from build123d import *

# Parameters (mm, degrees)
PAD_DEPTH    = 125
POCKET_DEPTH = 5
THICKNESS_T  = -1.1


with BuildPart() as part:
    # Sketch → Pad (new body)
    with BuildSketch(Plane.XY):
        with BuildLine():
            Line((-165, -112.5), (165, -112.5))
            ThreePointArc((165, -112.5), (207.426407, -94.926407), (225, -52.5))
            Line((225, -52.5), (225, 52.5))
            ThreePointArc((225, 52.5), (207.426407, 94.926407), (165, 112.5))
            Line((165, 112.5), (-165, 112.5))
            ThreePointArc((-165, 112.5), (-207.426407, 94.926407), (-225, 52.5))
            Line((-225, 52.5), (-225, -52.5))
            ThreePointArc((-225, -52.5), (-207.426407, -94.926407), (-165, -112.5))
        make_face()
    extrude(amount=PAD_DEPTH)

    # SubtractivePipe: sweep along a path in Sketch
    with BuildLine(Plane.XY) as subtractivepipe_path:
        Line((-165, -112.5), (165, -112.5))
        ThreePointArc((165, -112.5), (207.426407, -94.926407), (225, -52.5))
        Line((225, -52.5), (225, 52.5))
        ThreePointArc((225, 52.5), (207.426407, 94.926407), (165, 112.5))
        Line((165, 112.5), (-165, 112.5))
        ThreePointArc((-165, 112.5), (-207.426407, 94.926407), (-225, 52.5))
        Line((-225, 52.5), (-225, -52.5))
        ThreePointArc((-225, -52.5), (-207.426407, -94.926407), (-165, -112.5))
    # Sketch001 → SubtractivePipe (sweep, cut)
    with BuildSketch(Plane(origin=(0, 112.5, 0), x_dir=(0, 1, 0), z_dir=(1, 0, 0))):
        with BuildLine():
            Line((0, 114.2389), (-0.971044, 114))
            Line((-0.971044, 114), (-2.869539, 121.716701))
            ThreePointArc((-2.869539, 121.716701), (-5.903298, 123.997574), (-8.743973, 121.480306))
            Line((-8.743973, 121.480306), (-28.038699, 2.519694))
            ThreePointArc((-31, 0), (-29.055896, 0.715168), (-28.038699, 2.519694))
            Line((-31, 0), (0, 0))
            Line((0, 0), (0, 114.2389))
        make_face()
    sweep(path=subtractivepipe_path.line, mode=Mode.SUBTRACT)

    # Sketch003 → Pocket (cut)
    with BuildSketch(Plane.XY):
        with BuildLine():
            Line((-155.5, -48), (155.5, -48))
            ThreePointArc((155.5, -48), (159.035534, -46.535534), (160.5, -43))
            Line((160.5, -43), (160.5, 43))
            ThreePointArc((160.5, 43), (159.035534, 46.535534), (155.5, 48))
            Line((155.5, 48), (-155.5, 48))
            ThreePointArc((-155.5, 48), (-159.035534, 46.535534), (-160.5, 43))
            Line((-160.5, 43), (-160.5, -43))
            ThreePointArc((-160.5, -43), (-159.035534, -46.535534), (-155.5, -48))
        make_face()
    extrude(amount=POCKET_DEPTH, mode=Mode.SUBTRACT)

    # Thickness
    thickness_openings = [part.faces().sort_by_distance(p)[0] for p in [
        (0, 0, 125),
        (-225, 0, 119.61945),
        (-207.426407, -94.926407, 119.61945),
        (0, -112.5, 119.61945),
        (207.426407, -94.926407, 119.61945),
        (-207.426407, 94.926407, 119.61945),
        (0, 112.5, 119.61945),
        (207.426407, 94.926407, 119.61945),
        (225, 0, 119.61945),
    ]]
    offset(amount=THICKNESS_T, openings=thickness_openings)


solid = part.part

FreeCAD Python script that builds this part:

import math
import FreeCAD as App
import Part
import Sketcher

V = App.Vector
Q = App.Units.Quantity


def faces_at(feature, points):
    """Names of the faces that lie closest to the given points."""
    faces = feature.Shape.Faces
    near = lambda p: min(range(len(faces)), key=lambda i: faces[i].distToShape(Part.Vertex(*p))[0])
    return sorted({f"Face{near(p) + 1}" for p in points})

doc = App.newDocument("Part")
body = doc.addObject("PartDesign::Body", "Body")

sketch1 = body.newObject("Sketcher::SketchObject", "Sketch")
sketch1.AttachmentSupport = (doc.getObject("XY_Plane"), [""])
sketch1.MapMode = "FlatFace"
sketch1.addGeometry([
    Part.LineSegment(V(-165, -112, 0), V(165, -112, 0)),
    Part.ArcOfCircle(Part.Circle(V(165, -53, 0), V(0, 0, 1), 60), math.radians(-90), math.radians(0)),
    Part.LineSegment(V(225, -52, 0), V(225, 52, 0)),
    Part.ArcOfCircle(Part.Circle(V(165, 53, 0), V(0, 0, 1), 60), math.radians(0), math.radians(90)),
    Part.LineSegment(V(165, 112, 0), V(-165, 112, 0)),
    Part.ArcOfCircle(Part.Circle(V(-165, 53, 0), V(0, 0, 1), 60), math.radians(90), math.radians(180)),
    Part.LineSegment(V(-225, 52, 0), V(-225, -52, 0)),
    Part.ArcOfCircle(Part.Circle(V(-165, -53, 0), V(0, 0, 1), 60), math.radians(180), math.radians(270)),
], False)
sketch1.addConstraint([
    Sketcher.Constraint("Tangent", 0, 2, 1, 1),
    Sketcher.Constraint("Tangent", 1, 2, 2, 1),
    Sketcher.Constraint("Tangent", 2, 2, 3, 1),
    Sketcher.Constraint("Tangent", 3, 2, 4, 1),
    Sketcher.Constraint("Tangent", 4, 2, 5, 1),
    Sketcher.Constraint("Tangent", 5, 2, 6, 1),
    Sketcher.Constraint("Tangent", 6, 2, 7, 1),
    Sketcher.Constraint("Tangent", 7, 2, 0, 1),
    Sketcher.Constraint("Horizontal", 0),
    Sketcher.Constraint("Vertical", 2),
    Sketcher.Constraint("Horizontal", 4),
    Sketcher.Constraint("Vertical", 6),
    Sketcher.Constraint("Equal", 1, 3),
    Sketcher.Constraint("Equal", 3, 5),
    Sketcher.Constraint("Equal", 5, 7),
    Sketcher.Constraint("Symmetric", 1, 3, 5, 3, -1, 1),
    Sketcher.Constraint("Radius", 1, Q("60 mm")),
    Sketcher.Constraint("DistanceX", 0, 1, 0, 2, Q("330 mm")),
    Sketcher.Constraint("DistanceY", 2, 1, 2, 2, Q("105 mm")),
])
pad1 = body.newObject("PartDesign::Pad", "Pad")
pad1.Profile = sketch1
pad1.Length = 125

sketch2 = body.newObject("Sketcher::SketchObject", "Sketch001")
sketch2.AttachmentSupport = (doc.getObject("YZ_Plane"), [""])
sketch2.MapMode = "FlatFace"
sketch2.addGeometry([
    Part.LineSegment(V(112.5, 114.2, 0), V(111.5, 114, 0)),
    Part.LineSegment(V(111.5, 114, 0), V(109.6, 121.7, 0)),
    Part.ArcOfCircle(Part.Circle(V(106.7, 121, 0), V(0, 0, 1), 3), math.radians(14), math.radians(171)),
    Part.LineSegment(V(103.8, 121.5, 0), V(84.5, 2.5, 0)),
    Part.ArcOfCircle(Part.Circle(V(81.5, 3, 0), V(0, 0, 1), 3), math.radians(-90), math.radians(-9)),
    Part.LineSegment(V(81.5, 0, 0), V(112.5, 0, 0)),
    Part.LineSegment(V(112.5, 0, 0), V(112.5, 114.2, 0)),
], False)
sketch2.addConstraint([
    Sketcher.Constraint("Coincident", 0, 2, 1, 1),
    Sketcher.Constraint("Tangent", 1, 2, 2, 1),
    Sketcher.Constraint("Tangent", 2, 2, 3, 1),
    Sketcher.Constraint("Tangent", 3, 2, 4, 2),
    Sketcher.Constraint("Tangent", 4, 1, 5, 1),
    Sketcher.Constraint("Coincident", 5, 2, 6, 1),
    Sketcher.Constraint("Coincident", 6, 2, 0, 1),
    Sketcher.Constraint("Horizontal", 5),
    Sketcher.Constraint("Vertical", 6),
    Sketcher.Constraint("Equal", 2, 4),
    Sketcher.Constraint("PointOnObject", 4, 1, -1),
    Sketcher.Constraint("Perpendicular", 0, 1),
    Sketcher.Constraint("Radius", 2, Q("3 mm")),
    Sketcher.Constraint("DistanceX", 5, 1, 5, 2, Q("31 mm")),
    Sketcher.Constraint("Distance", 0, Q("1 mm")),
    Sketcher.Constraint("DistanceY", -1, 1, 2, 3, Q("121 mm")),
    Sketcher.Constraint("DistanceY", -1, 1, 0, 2, Q("114 mm")),
    Sketcher.Constraint("DistanceX", -1, 1, 4, 3, Q("81.499999 mm")),
    Sketcher.Constraint("DistanceY", 6, 1, 6, 2, Q("114.2389 mm")),
])

sketch3 = body.newObject("Sketcher::SketchObject", "Sketch002")
sketch3.AttachmentSupport = (doc.getObject("XY_Plane"), [""])
sketch3.MapMode = "FlatFace"
sketch3.addGeometry([
    Part.LineSegment(V(-165, -112, 0), V(165, -112, 0)),
    Part.ArcOfCircle(Part.Circle(V(165, -53, 0), V(0, 0, 1), 60), math.radians(-90), math.radians(0)),
    Part.LineSegment(V(225, -52, 0), V(225, 52, 0)),
    Part.ArcOfCircle(Part.Circle(V(165, 53, 0), V(0, 0, 1), 60), math.radians(0), math.radians(90)),
    Part.LineSegment(V(165, 112, 0), V(-165, 112, 0)),
    Part.ArcOfCircle(Part.Circle(V(-165, 53, 0), V(0, 0, 1), 60), math.radians(90), math.radians(180)),
    Part.LineSegment(V(-225, 52, 0), V(-225, -52, 0)),
    Part.ArcOfCircle(Part.Circle(V(-165, -53, 0), V(0, 0, 1), 60), math.radians(180), math.radians(270)),
], False)
sketch3.addConstraint([
    Sketcher.Constraint("Tangent", 0, 2, 1, 1),
    Sketcher.Constraint("Tangent", 1, 2, 2, 1),
    Sketcher.Constraint("Tangent", 2, 2, 3, 1),
    Sketcher.Constraint("Tangent", 3, 2, 4, 1),
    Sketcher.Constraint("Tangent", 4, 2, 5, 1),
    Sketcher.Constraint("Tangent", 5, 2, 6, 1),
    Sketcher.Constraint("Tangent", 6, 2, 7, 1),
    Sketcher.Constraint("Tangent", 7, 2, 0, 1),
    Sketcher.Constraint("Horizontal", 0),
    Sketcher.Constraint("Vertical", 2),
    Sketcher.Constraint("Horizontal", 4),
    Sketcher.Constraint("Vertical", 6),
    Sketcher.Constraint("Equal", 1, 3),
    Sketcher.Constraint("Equal", 3, 5),
    Sketcher.Constraint("Equal", 5, 7),
    Sketcher.Constraint("Symmetric", 1, 3, 5, 3, -1, 1),
    Sketcher.Constraint("Radius", 1, Q("60 mm")),
    Sketcher.Constraint("DistanceX", 0, 1, 0, 2, Q("330 mm")),
    Sketcher.Constraint("DistanceY", 2, 1, 2, 2, Q("105 mm")),
])
doc.recompute()

subtractivepipe = body.newObject("PartDesign::SubtractivePipe", "SubtractivePipe")
subtractivepipe.Profile = sketch2
subtractivepipe.Spine = (sketch3, ["Edge1", "Edge2", "Edge3", "Edge4", "Edge5", "Edge6", "Edge7", "Edge8"])

sketch4 = body.newObject("Sketcher::SketchObject", "Sketch003")
sketch4.AttachmentSupport = (doc.getObject("XY_Plane"), [""])
sketch4.MapMode = "FlatFace"
sketch4.addGeometry([
    Part.LineSegment(V(-155.5, -48, 0), V(155.5, -48, 0)),
    Part.ArcOfCircle(Part.Circle(V(155.5, -43, 0), V(0, 0, 1), 5), math.radians(-90), math.radians(0)),
    Part.LineSegment(V(160.5, -43, 0), V(160.5, 43, 0)),
    Part.ArcOfCircle(Part.Circle(V(155.5, 43, 0), V(0, 0, 1), 5), math.radians(0), math.radians(90)),
    Part.LineSegment(V(155.5, 48, 0), V(-155.5, 48, 0)),
    Part.ArcOfCircle(Part.Circle(V(-155.5, 43, 0), V(0, 0, 1), 5), math.radians(90), math.radians(180)),
    Part.LineSegment(V(-160.5, 43, 0), V(-160.5, -43, 0)),
    Part.ArcOfCircle(Part.Circle(V(-155.5, -43, 0), V(0, 0, 1), 5), math.radians(180), math.radians(270)),
], False)
sketch4.addConstraint([
    Sketcher.Constraint("Tangent", 0, 2, 1, 1),
    Sketcher.Constraint("Tangent", 1, 2, 2, 1),
    Sketcher.Constraint("Tangent", 2, 2, 3, 1),
    Sketcher.Constraint("Tangent", 3, 2, 4, 1),
    Sketcher.Constraint("Tangent", 4, 2, 5, 1),
    Sketcher.Constraint("Tangent", 5, 2, 6, 1),
    Sketcher.Constraint("Tangent", 6, 2, 7, 1),
    Sketcher.Constraint("Tangent", 7, 2, 0, 1),
    Sketcher.Constraint("Horizontal", 0),
    Sketcher.Constraint("Vertical", 2),
    Sketcher.Constraint("Horizontal", 4),
    Sketcher.Constraint("Vertical", 6),
    Sketcher.Constraint("Equal", 1, 3),
    Sketcher.Constraint("Equal", 3, 5),
    Sketcher.Constraint("Equal", 5, 7),
    Sketcher.Constraint("Symmetric", 1, 3, 5, 3, -1, 1),
    Sketcher.Constraint("Radius", 1, Q("5 mm")),
    Sketcher.Constraint("DistanceX", 0, 1, 0, 2, Q("311 mm")),
    Sketcher.Constraint("DistanceY", 2, 1, 2, 2, Q("86 mm")),
])
pocket1 = body.newObject("PartDesign::Pocket", "Pocket")
pocket1.Profile = sketch4
pocket1.Length = 5
pocket1.Reversed = True
doc.recompute()

thickness = body.newObject("PartDesign::Thickness", "Thickness")
thickness.Base = (pocket1, faces_at(pocket1, [
    (0, 0, 125),
    (-225, 0, 119.619),
    (-207.426, -94.926, 119.619),
    (0, -112.5, 119.619),
    (207.426, -94.926, 119.619),
    (-207.426, 94.926, 119.619),
    (0, 112.5, 119.619),
    (207.426, 94.926, 119.619),
    (225, 0, 119.619),
]))
thickness.Value = 1.1
thickness.Reversed = True
thickness.Join = "Arc"

doc.recompute()
